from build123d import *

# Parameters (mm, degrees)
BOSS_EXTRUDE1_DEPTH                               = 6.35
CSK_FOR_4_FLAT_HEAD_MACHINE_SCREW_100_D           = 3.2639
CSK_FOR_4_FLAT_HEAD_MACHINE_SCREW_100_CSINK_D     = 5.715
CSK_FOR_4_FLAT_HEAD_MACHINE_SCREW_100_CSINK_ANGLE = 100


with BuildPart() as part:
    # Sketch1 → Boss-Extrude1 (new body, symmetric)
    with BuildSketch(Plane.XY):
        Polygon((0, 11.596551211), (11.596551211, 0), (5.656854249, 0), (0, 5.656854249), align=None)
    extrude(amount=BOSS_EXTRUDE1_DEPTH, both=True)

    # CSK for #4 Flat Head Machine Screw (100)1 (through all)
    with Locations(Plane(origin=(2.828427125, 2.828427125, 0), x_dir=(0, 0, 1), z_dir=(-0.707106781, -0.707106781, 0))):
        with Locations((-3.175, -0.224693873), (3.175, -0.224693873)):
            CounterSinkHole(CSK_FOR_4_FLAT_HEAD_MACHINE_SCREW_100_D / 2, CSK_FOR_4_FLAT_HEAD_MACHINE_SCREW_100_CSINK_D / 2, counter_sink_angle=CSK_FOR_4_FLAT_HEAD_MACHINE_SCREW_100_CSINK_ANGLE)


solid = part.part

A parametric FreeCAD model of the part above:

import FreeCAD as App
import Part
import Sketcher

V = App.Vector


def add_polygon(sketch, points):
    """Adds a closed chain of lines whose ends are joined by coincident constraints."""
    first, n = sketch.GeometryCount, len(points)
    for a, b in zip(points, points[1:] + points[:1]):
        sketch.addGeometry(Part.LineSegment(App.Vector(*a, 0), App.Vector(*b, 0)), False)
    for i in range(n):
        sketch.addConstraint(Sketcher.Constraint("Coincident", first + i, 2, first + (i + 1) % n, 1))

doc = App.newDocument("Part")
params = doc.addObject("Spreadsheet::Sheet", "Params")
for row, (alias, value) in enumerate([
    ("sketch1_length", "8 mm"),
    ("sketch1_length2", "16.4 mm"),
    ("pad1_length", "12.7 mm"),
    ("hole_diameter", "3.2639 mm"),
    ("hole_csink_diameter", "5.715 mm"),
], start=1):
    params.set(f"A{row}", alias)
    params.set(f"B{row}", "=" + value)
    params.setAlias(f"B{row}", alias)

body = doc.addObject("PartDesign::Body", "Body")

# Sketch on XY plane
sketch1 = body.newObject("Sketcher::SketchObject", "Sketch")
sketch1.AttachmentSupport = (doc.getObject("XY_Plane"), [""])
sketch1.MapMode = "FlatFace"
add_polygon(sketch1, [(12, 0), (0, 12), (0, 6), (6, 0)])  # lines 0-3
sketch1.addConstraint([
    Sketcher.Constraint("Vertical", 1),
    Sketcher.Constraint("Horizontal", 3),
    Sketcher.Constraint("PointOnObject", 0, 2, -2),
    Sketcher.Constraint("PointOnObject", 2, 2, -1),
    Sketcher.Constraint("Parallel", 0, 2),
    Sketcher.Constraint("Equal", 3, 1),
    Sketcher.Constraint("Distance", 2, 8.0),
    Sketcher.Constraint("Distance", 0, 16.4),
])
sketch1.setExpression("Constraints[10]", "Params.sketch1_length")
sketch1.setExpression("Constraints[11]", "Params.sketch1_length2")
pad1 = body.newObject("PartDesign::Pad", "Pad")
pad1.Profile = sketch1
pad1.setExpression("Length", "Params.pad1_length")
pad1.Midplane = True

# Sketch on an angled plane
sketch2 = body.newObject("Sketcher::SketchObject", "Sketch001")
sketch2.Placement = App.Placement(V(2.828427, 2.828427, 0), App.Rotation(V(0, 0, 1), V(-0.707106781, 0.707106781, 0), V(-0.707106781, -0.707106781, 0), "ZXY"))
sketch2.addGeometry([
    Part.Circle(V(-3.2, -0.2, 0), V(0, 0, 1), 1.6),
    Part.Circle(V(3.2, -0.2, 0), V(0, 0, 1), 1.6),
], False)
sketch2.addConstraint([
    Sketcher.Constraint("Equal", 0, 1),
    Sketcher.Constraint("Symmetric", 0, 3, 1, 3, -2),
    Sketcher.Constraint("Diameter", 0, 3.2639),
    Sketcher.Constraint("DistanceX", 0, 3, 1, 3, 6.35),
    Sketcher.Constraint("DistanceY", 0, 3, -1, 1, 0.224694),
])
doc.recompute()
hole = body.newObject("PartDesign::Hole", "Hole")
hole.Profile = sketch2
hole.ThreadType = "None"
hole.setExpression("Diameter", "Params.hole_diameter")
hole.DepthType = "ThroughAll"
hole.HoleCutType = "Countersink"
hole.setExpression("HoleCutDiameter", "Params.hole_csink_diameter")
hole.HoleCutCountersinkAngle = 100

doc.recompute()
